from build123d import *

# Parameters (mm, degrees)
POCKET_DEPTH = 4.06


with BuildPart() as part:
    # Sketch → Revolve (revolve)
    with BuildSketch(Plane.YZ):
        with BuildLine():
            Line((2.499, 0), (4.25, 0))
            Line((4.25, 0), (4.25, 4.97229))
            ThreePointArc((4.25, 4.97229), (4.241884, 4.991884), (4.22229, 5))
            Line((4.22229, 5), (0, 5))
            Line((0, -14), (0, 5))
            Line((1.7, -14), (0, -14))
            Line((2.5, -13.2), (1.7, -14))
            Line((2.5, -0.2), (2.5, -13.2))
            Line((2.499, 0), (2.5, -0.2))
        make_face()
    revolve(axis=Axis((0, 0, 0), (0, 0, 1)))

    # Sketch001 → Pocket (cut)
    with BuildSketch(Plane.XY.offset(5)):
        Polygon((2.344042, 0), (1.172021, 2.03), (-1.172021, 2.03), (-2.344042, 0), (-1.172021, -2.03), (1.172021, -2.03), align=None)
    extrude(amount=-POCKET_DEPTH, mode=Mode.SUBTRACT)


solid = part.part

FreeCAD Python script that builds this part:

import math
import FreeCAD as App
import Part
import Sketcher
from FreeCAD import Vector
Q = App.Units.Quantity

doc = App.newDocument("Part")
body = doc.addObject("PartDesign::Body", "Body")

# Sketch on YZ plane
sketch1 = body.newObject("Sketcher::SketchObject", "Sketch")
sketch1.AttachmentSupport = (doc.getObject("YZ_Plane"), [""])
sketch1.MapMode = "FlatFace"
sketch1.addGeometry(Part.LineSegment(Vector(2.499, 0, 0), Vector(4.25, 0, 0)), False)
sketch1.addGeometry(Part.LineSegment(Vector(4.25, 0, 0), Vector(4.25, 4.972, 0)), False)
sketch1.addGeometry(Part.ArcOfCircle(Part.Circle(Vector(4.222, 4.972, 0), Vector(0, 0, 1), 0.028), math.radians(0), math.radians(90)), False)
sketch1.addGeometry(Part.LineSegment(Vector(4.222, 5, 0), Vector(0, 5, 0)), False)
sketch1.addGeometry(Part.LineSegment(Vector(0, 5, 0), Vector(0, -14, 0)), False)
sketch1.addGeometry(Part.LineSegment(Vector(0, -14, 0), Vector(1.7, -14, 0)), False)
sketch1.addGeometry(Part.LineSegment(Vector(1.7, -14, 0), Vector(2.5, -13.2, 0)), False)
sketch1.addGeometry(Part.LineSegment(Vector(2.5, -13.2, 0), Vector(2.5, -0.2, 0)), False)
sketch1.addGeometry(Part.LineSegment(Vector(2.5, -0.2, 0), Vector(2.499, 0, 0)), False)
sketch1.addConstraint(Sketcher.Constraint("Coincident", 0, 2, 1, 1))
sketch1.addConstraint(Sketcher.Constraint("Coincident", 1, 2, 2, 1))
sketch1.addConstraint(Sketcher.Constraint("Coincident", 2, 2, 3, 1))
sketch1.addConstraint(Sketcher.Constraint("Coincident", 3, 2, 4, 1))
sketch1.addConstraint(Sketcher.Constraint("Coincident", 4, 2, 5, 1))
sketch1.addConstraint(Sketcher.Constraint("Coincident", 5, 2, 6, 1))
sketch1.addConstraint(Sketcher.Constraint("Coincident", 6, 2, 7, 1))
sketch1.addConstraint(Sketcher.Constraint("Coincident", 7, 2, 8, 1))
sketch1.addConstraint(Sketcher.Constraint("Coincident", 8, 2, 0, 1))
sketch1.addConstraint(Sketcher.Constraint("Horizontal", 0))
sketch1.addConstraint(Sketcher.Constraint("Vertical", 1))
sketch1.addConstraint(Sketcher.Constraint("Horizontal", 3))
sketch1.addConstraint(Sketcher.Constraint("Vertical", 4))
sketch1.addConstraint(Sketcher.Constraint("Horizontal", 5))
sketch1.addConstraint(Sketcher.Constraint("Vertical", 7))
sketch1.addConstraint(Sketcher.Constraint("PointOnObject", 0, 2, -1))
sketch1.addConstraint(Sketcher.Constraint("PointOnObject", 3, 2, -2))
sketch1.addConstraint(Sketcher.Constraint("Horizontal", 2, 3, 1, 2))
sketch1.addConstraint(Sketcher.Constraint("DistanceY", 4, 2, 4, 1, 19.0))
sketch1.addConstraint(Sketcher.Constraint("DistanceY", 7, 1, 7, 2, 13.0))
sketch1.addConstraint(Sketcher.Constraint("Angle", 6, Q("45 deg")))
sketch1.addConstraint(Sketcher.Constraint("DistanceX", 5, 1, 5, 2, 1.7))
sketch1.addConstraint(Sketcher.Constraint("DistanceY", -1, 1, 2, 2, 5.0))
sketch1.addConstraint(Sketcher.Constraint("DistanceX", -1, 1, 6, 2, 2.5))
sketch1.addConstraint(Sketcher.Constraint("DistanceX", 0, 1, 0, 2, 1.751))
sketch1.addConstraint(Sketcher.Constraint("DistanceX", -1, 1, 0, 2, 4.25))
sketch1.addConstraint(Sketcher.Constraint("Radius", 2, 0.02771))
sketch1.addConstraint(Sketcher.Constraint("DistanceX", 3, 2, 3, 1, 4.22229))
revolution = body.newObject("PartDesign::Revolution", "Revolution")
revolution.Profile = sketch1
revolution.ReferenceAxis = (sketch1, ["V_Axis"])
revolution.Angle = 360

# Sketch on XY plane
sketch2 = body.newObject("Sketcher::SketchObject", "Sketch001")
sketch2.AttachmentSupport = (doc.getObject("XY_Plane"), [""])
sketch2.MapMode = "FlatFace"
sketch2.AttachmentOffset = App.Placement(Vector(0, 0, 5), App.Rotation())
sketch2.addGeometry(Part.LineSegment(Vector(2.3, 0, 0), Vector(1.2, 2, 0)), False)
sketch2.addGeometry(Part.LineSegment(Vector(1.2, 2, 0), Vector(-1.2, 2, 0)), False)
sketch2.addGeometry(Part.LineSegment(Vector(-1.2, 2, 0), Vector(-2.3, 0, 0)), False)
sketch2.addGeometry(Part.LineSegment(Vector(-2.3, 0, 0), Vector(-1.2, -2, 0)), False)
sketch2.addGeometry(Part.LineSegment(Vector(-1.2, -2, 0), Vector(1.2, -2, 0)), False)
sketch2.addGeometry(Part.LineSegment(Vector(1.2, -2, 0), Vector(2.3, 0, 0)), False)
sketch2.addConstraint(Sketcher.Constraint("Coincident", 0, 2, 1, 1))
sketch2.addConstraint(Sketcher.Constraint("Coincident", 1, 2, 2, 1))
sketch2.addConstraint(Sketcher.Constraint("Coincident", 2, 2, 3, 1))
sketch2.addConstraint(Sketcher.Constraint("Coincident", 3, 2, 4, 1))
sketch2.addConstraint(Sketcher.Constraint("Coincident", 4, 2, 5, 1))
sketch2.addConstraint(Sketcher.Constraint("Coincident", 5, 2, 0, 1))
sketch2.addConstraint(Sketcher.Constraint("Horizontal", 1))
sketch2.addConstraint(Sketcher.Constraint("Horizontal", 4))
sketch2.addConstraint(Sketcher.Constraint("Symmetric", 0, 2, 3, 2, -1, 1))
sketch2.addConstraint(Sketcher.Constraint("Symmetric", 2, 2, 5, 2, -1, 1))
sketch2.addConstraint(Sketcher.Constraint("PointOnObject", 2, 2, -1))
sketch2.addConstraint(Sketcher.Constraint("Parallel", 2, 5))
sketch2.addConstraint(Sketcher.Constraint("Vertical", 1, 2, 3, 2))
sketch2.addConstraint(Sketcher.Constraint("Angle", 0, Q("119.999999 deg")))
sketch2.addConstraint(Sketcher.Constraint("DistanceY", -1, 1, 0, 2, 2.03))
sketch2.addConstraint(Sketcher.Constraint("DistanceX", 1, 2, 1, 1, 2.344042))
pocket1 = body.newObject("PartDesign::Pocket", "Pocket")
pocket1.Profile = sketch2
pocket1.Length = 4.06

doc.recompute()
